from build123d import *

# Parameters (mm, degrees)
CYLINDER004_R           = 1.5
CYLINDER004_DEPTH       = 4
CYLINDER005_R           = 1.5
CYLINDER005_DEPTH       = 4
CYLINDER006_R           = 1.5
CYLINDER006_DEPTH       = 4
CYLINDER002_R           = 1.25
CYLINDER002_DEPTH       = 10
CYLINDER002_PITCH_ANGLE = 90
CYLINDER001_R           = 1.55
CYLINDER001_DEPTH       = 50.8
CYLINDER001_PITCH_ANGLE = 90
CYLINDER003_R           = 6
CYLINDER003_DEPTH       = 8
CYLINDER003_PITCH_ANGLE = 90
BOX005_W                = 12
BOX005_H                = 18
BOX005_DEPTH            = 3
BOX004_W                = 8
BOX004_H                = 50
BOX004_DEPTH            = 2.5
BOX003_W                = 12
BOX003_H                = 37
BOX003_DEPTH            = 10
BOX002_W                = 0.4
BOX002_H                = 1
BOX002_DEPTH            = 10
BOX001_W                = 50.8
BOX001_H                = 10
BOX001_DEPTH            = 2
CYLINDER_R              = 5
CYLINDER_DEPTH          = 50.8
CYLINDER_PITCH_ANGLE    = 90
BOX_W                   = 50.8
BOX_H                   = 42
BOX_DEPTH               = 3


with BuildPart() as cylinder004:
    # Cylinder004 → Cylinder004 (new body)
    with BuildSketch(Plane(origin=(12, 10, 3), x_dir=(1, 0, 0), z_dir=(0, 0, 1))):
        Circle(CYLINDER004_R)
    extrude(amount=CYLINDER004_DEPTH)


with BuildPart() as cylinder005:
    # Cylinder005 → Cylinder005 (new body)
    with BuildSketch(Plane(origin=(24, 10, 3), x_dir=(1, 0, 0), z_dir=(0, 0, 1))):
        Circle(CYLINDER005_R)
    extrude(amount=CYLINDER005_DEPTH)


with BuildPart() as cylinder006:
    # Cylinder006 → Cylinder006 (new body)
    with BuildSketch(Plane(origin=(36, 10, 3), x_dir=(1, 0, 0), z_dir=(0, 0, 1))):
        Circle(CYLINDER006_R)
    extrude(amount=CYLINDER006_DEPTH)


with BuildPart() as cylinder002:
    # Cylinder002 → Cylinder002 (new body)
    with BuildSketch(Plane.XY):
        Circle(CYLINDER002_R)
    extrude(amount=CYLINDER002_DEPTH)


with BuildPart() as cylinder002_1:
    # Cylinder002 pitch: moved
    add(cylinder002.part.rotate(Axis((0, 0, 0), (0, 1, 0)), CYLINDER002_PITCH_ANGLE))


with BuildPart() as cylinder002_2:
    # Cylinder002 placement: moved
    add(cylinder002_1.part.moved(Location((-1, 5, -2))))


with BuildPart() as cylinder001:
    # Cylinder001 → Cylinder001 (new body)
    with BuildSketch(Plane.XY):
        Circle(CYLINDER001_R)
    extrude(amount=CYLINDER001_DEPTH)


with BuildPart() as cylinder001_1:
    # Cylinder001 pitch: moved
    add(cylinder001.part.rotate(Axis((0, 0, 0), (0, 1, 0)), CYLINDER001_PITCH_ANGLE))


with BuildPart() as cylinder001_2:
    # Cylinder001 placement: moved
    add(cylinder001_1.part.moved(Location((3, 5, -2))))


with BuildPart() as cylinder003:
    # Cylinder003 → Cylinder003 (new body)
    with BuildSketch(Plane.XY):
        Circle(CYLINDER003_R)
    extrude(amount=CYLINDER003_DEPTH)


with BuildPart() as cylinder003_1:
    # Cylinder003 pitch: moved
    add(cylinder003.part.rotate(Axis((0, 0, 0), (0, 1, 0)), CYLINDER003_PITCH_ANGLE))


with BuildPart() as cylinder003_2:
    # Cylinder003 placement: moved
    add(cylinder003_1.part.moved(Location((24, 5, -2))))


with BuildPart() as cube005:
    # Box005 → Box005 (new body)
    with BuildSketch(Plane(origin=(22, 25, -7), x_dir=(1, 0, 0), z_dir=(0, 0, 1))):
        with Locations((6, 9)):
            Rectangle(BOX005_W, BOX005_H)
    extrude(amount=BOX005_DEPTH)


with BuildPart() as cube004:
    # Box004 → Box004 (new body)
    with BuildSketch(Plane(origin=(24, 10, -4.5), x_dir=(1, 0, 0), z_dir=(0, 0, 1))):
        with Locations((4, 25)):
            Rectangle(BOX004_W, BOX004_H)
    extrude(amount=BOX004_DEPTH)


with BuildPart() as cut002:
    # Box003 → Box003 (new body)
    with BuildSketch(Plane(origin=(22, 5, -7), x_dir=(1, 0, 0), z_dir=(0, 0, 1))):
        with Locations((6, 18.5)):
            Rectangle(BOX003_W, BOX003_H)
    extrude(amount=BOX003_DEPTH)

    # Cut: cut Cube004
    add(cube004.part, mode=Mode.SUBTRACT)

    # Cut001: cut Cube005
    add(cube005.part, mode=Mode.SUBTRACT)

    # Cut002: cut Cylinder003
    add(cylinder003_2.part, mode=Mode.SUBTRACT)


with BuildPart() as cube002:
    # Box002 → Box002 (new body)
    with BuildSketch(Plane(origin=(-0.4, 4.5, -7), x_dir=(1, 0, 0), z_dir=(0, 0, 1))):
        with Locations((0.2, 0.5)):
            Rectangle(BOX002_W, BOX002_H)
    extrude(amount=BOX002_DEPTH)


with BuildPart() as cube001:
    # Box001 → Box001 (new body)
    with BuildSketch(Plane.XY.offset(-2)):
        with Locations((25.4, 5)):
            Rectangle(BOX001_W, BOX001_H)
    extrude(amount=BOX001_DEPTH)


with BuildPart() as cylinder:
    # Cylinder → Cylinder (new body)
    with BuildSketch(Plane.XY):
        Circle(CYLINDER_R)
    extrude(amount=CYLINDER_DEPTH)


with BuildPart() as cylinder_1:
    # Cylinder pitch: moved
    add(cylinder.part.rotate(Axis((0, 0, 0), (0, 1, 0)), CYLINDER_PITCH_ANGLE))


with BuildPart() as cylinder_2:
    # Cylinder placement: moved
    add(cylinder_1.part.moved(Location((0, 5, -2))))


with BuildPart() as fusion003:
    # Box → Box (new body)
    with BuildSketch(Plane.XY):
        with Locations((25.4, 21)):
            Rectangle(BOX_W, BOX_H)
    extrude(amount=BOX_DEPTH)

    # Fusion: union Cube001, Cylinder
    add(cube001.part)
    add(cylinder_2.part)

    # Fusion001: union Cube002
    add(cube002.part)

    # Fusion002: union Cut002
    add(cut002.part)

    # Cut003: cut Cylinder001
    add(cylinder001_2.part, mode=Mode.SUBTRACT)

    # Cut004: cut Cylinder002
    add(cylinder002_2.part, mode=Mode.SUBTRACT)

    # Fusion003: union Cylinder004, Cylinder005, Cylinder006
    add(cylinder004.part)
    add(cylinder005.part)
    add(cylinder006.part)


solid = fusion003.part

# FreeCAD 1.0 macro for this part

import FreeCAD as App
import Part
import Sketcher
from FreeCAD import Vector
Q = App.Units.Quantity

doc = App.newDocument("Part")
body = doc.addObject("PartDesign::Body", "Body")

sketch1 = body.newObject("Sketcher::SketchObject", "Sketch")
sketch1.AttachmentSupport = (doc.getObject("XY_Plane"), [""])
sketch1.MapMode = "FlatFace"
sketch1.AttachmentOffset = App.Placement(Vector(0, 0, 3), App.Rotation())
sketch1.addGeometry(Part.Circle(Vector(12, 10, 0), Vector(0, 0, 1), 1.5), False)
sketch1.addConstraint(Sketcher.Constraint("Diameter", 0, Q("3 mm")))
sketch1.addConstraint(Sketcher.Constraint("DistanceX", -1, 1, 0, 3, Q("12 mm")))
sketch1.addConstraint(Sketcher.Constraint("DistanceY", -1, 1, 0, 3, Q("10 mm")))
pad1 = body.newObject("PartDesign::Pad", "Pad")
pad1.Profile = sketch1
pad1.Length = 4
body2 = doc.addObject("PartDesign::Body", "Body001")

sketch2 = body2.newObject("Sketcher::SketchObject", "Sketch001")
sketch2.AttachmentSupport = (doc.getObject("XY_Plane001"), [""])
sketch2.MapMode = "FlatFace"
sketch2.AttachmentOffset = App.Placement(Vector(0, 0, 3), App.Rotation())
sketch2.addGeometry(Part.Circle(Vector(24, 10, 0), Vector(0, 0, 1), 1.5), False)
sketch2.addConstraint(Sketcher.Constraint("Diameter", 0, Q("3 mm")))
sketch2.addConstraint(Sketcher.Constraint("DistanceX", -1, 1, 0, 3, Q("24 mm")))
sketch2.addConstraint(Sketcher.Constraint("DistanceY", -1, 1, 0, 3, Q("10 mm")))
pad2 = body2.newObject("PartDesign::Pad", "Pad001")
pad2.Profile = sketch2
pad2.Length = 4
body3 = doc.addObject("PartDesign::Body", "Body002")

sketch3 = body3.newObject("Sketcher::SketchObject", "Sketch002")
sketch3.AttachmentSupport = (doc.getObject("XY_Plane002"), [""])
sketch3.MapMode = "FlatFace"
sketch3.AttachmentOffset = App.Placement(Vector(0, 0, 3), App.Rotation())
sketch3.addGeometry(Part.Circle(Vector(36, 10, 0), Vector(0, 0, 1), 1.5), False)
sketch3.addConstraint(Sketcher.Constraint("Diameter", 0, Q("3 mm")))
sketch3.addConstraint(Sketcher.Constraint("DistanceX", -1, 1, 0, 3, Q("36 mm")))
sketch3.addConstraint(Sketcher.Constraint("DistanceY", -1, 1, 0, 3, Q("10 mm")))
pad3 = body3.newObject("PartDesign::Pad", "Pad002")
pad3.Profile = sketch3
pad3.Length = 4
body4 = doc.addObject("PartDesign::Body", "Body003")

sketch4 = body4.newObject("Sketcher::SketchObject", "Sketch003")
sketch4.AttachmentSupport = (doc.getObject("XY_Plane003"), [""])
sketch4.MapMode = "FlatFace"
sketch4.addGeometry(Part.Circle(Vector(0, 0, 0), Vector(0, 0, 1), 1.25), False)
sketch4.addConstraint(Sketcher.Constraint("Coincident", 0, 3, -1, 1))
sketch4.addConstraint(Sketcher.Constraint("Diameter", 0, Q("2.5 mm")))
pad4 = body4.newObject("PartDesign::Pad", "Pad003")
pad4.Profile = sketch4
pad4.Length = 10
body5 = doc.addObject("PartDesign::Body", "Body004")
doc.recompute()

body4.Placement = App.Placement(Vector(0, 0, 0), App.Rotation(Vector(0, 1, 0), 90))
boolean = body5.newObject("PartDesign::Boolean", "Boolean")
boolean.Type = "Fuse"
boolean.addObjects([body4])
body6 = doc.addObject("PartDesign::Body", "Body005")
doc.recompute()

body5.Placement = App.Placement(Vector(-1, 5, -2), App.Rotation(Vector(0, 0, 1), 0))
boolean2 = body6.newObject("PartDesign::Boolean", "Boolean001")
boolean2.Type = "Fuse"
boolean2.addObjects([body5])
body7 = doc.addObject("PartDesign::Body", "Body006")

sketch5 = body7.newObject("Sketcher::SketchObject", "Sketch004")
sketch5.AttachmentSupport = (doc.getObject("XY_Plane006"), [""])
sketch5.MapMode = "FlatFace"
sketch5.addGeometry(Part.Circle(Vector(0, 0, 0), Vector(0, 0, 1), 1.55), False)
sketch5.addConstraint(Sketcher.Constraint("Coincident", 0, 3, -1, 1))
sketch5.addConstraint(Sketcher.Constraint("Diameter", 0, Q("3.1 mm")))
pad5 = body7.newObject("PartDesign::Pad", "Pad004")
pad5.Profile = sketch5
pad5.Length = 50.8
body8 = doc.addObject("PartDesign::Body", "Body007")
doc.recompute()

body7.Placement = App.Placement(Vector(0, 0, 0), App.Rotation(Vector(0, 1, 0), 90))
boolean3 = body8.newObject("PartDesign::Boolean", "Boolean002")
boolean3.Type = "Fuse"
boolean3.addObjects([body7])
body9 = doc.addObject("PartDesign::Body", "Body008")
doc.recompute()

body8.Placement = App.Placement(Vector(3, 5, -2), App.Rotation(Vector(0, 0, 1), 0))
boolean4 = body9.newObject("PartDesign::Boolean", "Boolean003")
boolean4.Type = "Fuse"
boolean4.addObjects([body8])
body10 = doc.addObject("PartDesign::Body", "Body009")

sketch6 = body10.newObject("Sketcher::SketchObject", "Sketch005")
sketch6.AttachmentSupport = (doc.getObject("XY_Plane009"), [""])
sketch6.MapMode = "FlatFace"
sketch6.addGeometry(Part.Circle(Vector(0, 0, 0), Vector(0, 0, 1), 6), False)
sketch6.addConstraint(Sketcher.Constraint("Coincident", 0, 3, -1, 1))
sketch6.addConstraint(Sketcher.Constraint("Diameter", 0, Q("12 mm")))
pad6 = body10.newObject("PartDesign::Pad", "Pad005")
pad6.Profile = sketch6
pad6.Length = 8
body11 = doc.addObject("PartDesign::Body", "Body010")
doc.recompute()

body10.Placement = App.Placement(Vector(0, 0, 0), App.Rotation(Vector(0, 1, 0), 90))
boolean5 = body11.newObject("PartDesign::Boolean", "Boolean004")
boolean5.Type = "Fuse"
boolean5.addObjects([body10])
body12 = doc.addObject("PartDesign::Body", "Body011")
doc.recompute()

body11.Placement = App.Placement(Vector(24, 5, -2), App.Rotation(Vector(0, 0, 1), 0))
boolean6 = body12.newObject("PartDesign::Boolean", "Boolean005")
boolean6.Type = "Fuse"
boolean6.addObjects([body11])
body13 = doc.addObject("PartDesign::Body", "Body012")

sketch7 = body13.newObject("Sketcher::SketchObject", "Sketch006")
sketch7.AttachmentSupport = (doc.getObject("XY_Plane012"), [""])
sketch7.MapMode = "FlatFace"
sketch7.AttachmentOffset = App.Placement(Vector(0, 0, -7), App.Rotation())
sketch7.addGeometry(Part.LineSegment(Vector(22, 43, 0), Vector(22, 25, 0)), False)
sketch7.addGeometry(Part.LineSegment(Vector(22, 25, 0), Vector(34, 25, 0)), False)
sketch7.addGeometry(Part.LineSegment(Vector(34, 25, 0), Vector(34, 43, 0)), False)
sketch7.addGeometry(Part.LineSegment(Vector(34, 43, 0), Vector(22, 43, 0)), False)
sketch7.addConstraint(Sketcher.Constraint("Coincident", 0, 2, 1, 1))
sketch7.addConstraint(Sketcher.Constraint("Coincident", 1, 2, 2, 1))
sketch7.addConstraint(Sketcher.Constraint("Coincident", 2, 2, 3, 1))
sketch7.addConstraint(Sketcher.Constraint("Coincident", 3, 2, 0, 1))
sketch7.addConstraint(Sketcher.Constraint("Vertical", 0))
sketch7.addConstraint(Sketcher.Constraint("Horizontal", 1))
sketch7.addConstraint(Sketcher.Constraint("Vertical", 2))
sketch7.addConstraint(Sketcher.Constraint("Horizontal", 3))
sketch7.addConstraint(Sketcher.Constraint("DistanceX", 1, 1, 1, 2, Q("12 mm")))
sketch7.addConstraint(Sketcher.Constraint("DistanceY", 0, 2, 0, 1, Q("18 mm")))
sketch7.addConstraint(Sketcher.Constraint("DistanceX", -1, 1, 0, 2, Q("22 mm")))
sketch7.addConstraint(Sketcher.Constraint("DistanceY", -1, 1, 0, 2, Q("25 mm")))
pad7 = body13.newObject("PartDesign::Pad", "Pad006")
pad7.Profile = sketch7
pad7.Length = 3
body14 = doc.addObject("PartDesign::Body", "Body013")

sketch8 = body14.newObject("Sketcher::SketchObject", "Sketch007")
sketch8.AttachmentSupport = (doc.getObject("XY_Plane013"), [""])
sketch8.MapMode = "FlatFace"
sketch8.AttachmentOffset = App.Placement(Vector(0, 0, -4.5), App.Rotation())
sketch8.addGeometry(Part.LineSegment(Vector(24, 60, 0), Vector(24, 10, 0)), False)
sketch8.addGeometry(Part.LineSegment(Vector(24, 10, 0), Vector(32, 10, 0)), False)
sketch8.addGeometry(Part.LineSegment(Vector(32, 10, 0), Vector(32, 60, 0)), False)
sketch8.addGeometry(Part.LineSegment(Vector(32, 60, 0), Vector(24, 60, 0)), False)
sketch8.addConstraint(Sketcher.Constraint("Coincident", 0, 2, 1, 1))
sketch8.addConstraint(Sketcher.Constraint("Coincident", 1, 2, 2, 1))
sketch8.addConstraint(Sketcher.Constraint("Coincident", 2, 2, 3, 1))
sketch8.addConstraint(Sketcher.Constraint("Coincident", 3, 2, 0, 1))
sketch8.addConstraint(Sketcher.Constraint("Vertical", 0))
sketch8.addConstraint(Sketcher.Constraint("Horizontal", 1))
sketch8.addConstraint(Sketcher.Constraint("Vertical", 2))
sketch8.addConstraint(Sketcher.Constraint("Horizontal", 3))
sketch8.addConstraint(Sketcher.Constraint("DistanceX", 1, 1, 1, 2, Q("8 mm")))
sketch8.addConstraint(Sketcher.Constraint("DistanceY", 0, 2, 0, 1, Q("50 mm")))
sketch8.addConstraint(Sketcher.Constraint("DistanceX", -1, 1, 0, 2, Q("24 mm")))
sketch8.addConstraint(Sketcher.Constraint("DistanceY", -1, 1, 0, 2, Q("10 mm")))
pad8 = body14.newObject("PartDesign::Pad", "Pad007")
pad8.Profile = sketch8
pad8.Length = 2.5
body15 = doc.addObject("PartDesign::Body", "Body014")

sketch9 = body15.newObject("Sketcher::SketchObject", "Sketch008")
sketch9.AttachmentSupport = (doc.getObject("XY_Plane014"), [""])
sketch9.MapMode = "FlatFace"
sketch9.AttachmentOffset = App.Placement(Vector(0, 0, -7), App.Rotation())
sketch9.addGeometry(Part.LineSegment(Vector(22, 42, 0), Vector(22, 5, 0)), False)
sketch9.addGeometry(Part.LineSegment(Vector(22, 5, 0), Vector(34, 5, 0)), False)
sketch9.addGeometry(Part.LineSegment(Vector(34, 5, 0), Vector(34, 42, 0)), False)
sketch9.addGeometry(Part.LineSegment(Vector(34, 42, 0), Vector(22, 42, 0)), False)
sketch9.addConstraint(Sketcher.Constraint("Coincident", 0, 2, 1, 1))
sketch9.addConstraint(Sketcher.Constraint("Coincident", 1, 2, 2, 1))
sketch9.addConstraint(Sketcher.Constraint("Coincident", 2, 2, 3, 1))
sketch9.addConstraint(Sketcher.Constraint("Coincident", 3, 2, 0, 1))
sketch9.addConstraint(Sketcher.Constraint("Vertical", 0))
sketch9.addConstraint(Sketcher.Constraint("Horizontal", 1))
sketch9.addConstraint(Sketcher.Constraint("Vertical", 2))
sketch9.addConstraint(Sketcher.Constraint("Horizontal", 3))
sketch9.addConstraint(Sketcher.Constraint("DistanceX", 1, 1, 1, 2, Q("12 mm")))
sketch9.addConstraint(Sketcher.Constraint("DistanceY", 0, 2, 0, 1, Q("37 mm")))
sketch9.addConstraint(Sketcher.Constraint("DistanceX", -1, 1, 0, 2, Q("22 mm")))
sketch9.addConstraint(Sketcher.Constraint("DistanceY", -1, 1, 0, 2, Q("5 mm")))
pad9 = body15.newObject("PartDesign::Pad", "Pad008")
pad9.Profile = sketch9
pad9.Length = 10
doc.recompute()

boolean7 = body15.newObject("PartDesign::Boolean", "Boolean006")
boolean7.Type = "Cut"
boolean7.addObjects([body14])
doc.recompute()

boolean8 = body15.newObject("PartDesign::Boolean", "Boolean007")
boolean8.Type = "Cut"
boolean8.addObjects([body13])
doc.recompute()

boolean9 = body15.newObject("PartDesign::Boolean", "Boolean008")
boolean9.Type = "Cut"
boolean9.addObjects([body12])
body16 = doc.addObject("PartDesign::Body", "Body015")

sketch10 = body16.newObject("Sketcher::SketchObject", "Sketch009")
sketch10.AttachmentSupport = (doc.getObject("XY_Plane015"), [""])
sketch10.MapMode = "FlatFace"
sketch10.AttachmentOffset = App.Placement(Vector(0, 0, -7), App.Rotation())
sketch10.addGeometry(Part.LineSegment(Vector(-0.4, 5.5, 0), Vector(-0.4, 4.5, 0)), False)
sketch10.addGeometry(Part.LineSegment(Vector(-0.4, 4.5, 0), Vector(0, 4.5, 0)), False)
sketch10.addGeometry(Part.LineSegment(Vector(0, 4.5, 0), Vector(0, 5.5, 0)), False)
sketch10.addGeometry(Part.LineSegment(Vector(0, 5.5, 0), Vector(-0.4, 5.5, 0)), False)
sketch10.addConstraint(Sketcher.Constraint("Coincident", 0, 2, 1, 1))
sketch10.addConstraint(Sketcher.Constraint("Coincident", 1, 2, 2, 1))
sketch10.addConstraint(Sketcher.Constraint("Coincident", 2, 2, 3, 1))
sketch10.addConstraint(Sketcher.Constraint("Coincident", 3, 2, 0, 1))
sketch10.addConstraint(Sketcher.Constraint("Vertical", 0))
sketch10.addConstraint(Sketcher.Constraint("Horizontal", 1))
sketch10.addConstraint(Sketcher.Constraint("Vertical", 2))
sketch10.addConstraint(Sketcher.Constraint("Horizontal", 3))
sketch10.addConstraint(Sketcher.Constraint("PointOnObject", 1, 2, -2))
sketch10.addConstraint(Sketcher.Constraint("DistanceY", 0, 2, 0, 1, Q("1 mm")))
sketch10.addConstraint(Sketcher.Constraint("DistanceX", 1, 1, 1, 2, Q("0.4 mm")))
sketch10.addConstraint(Sketcher.Constraint("DistanceY", -1, 1, 0, 2, Q("4.5 mm")))
pad10 = body16.newObject("PartDesign::Pad", "Pad009")
pad10.Profile = sketch10
pad10.Length = 10
body17 = doc.addObject("PartDesign::Body", "Body016")

sketch11 = body17.newObject("Sketcher::SketchObject", "Sketch010")
sketch11.AttachmentSupport = (doc.getObject("XY_Plane016"), [""])
sketch11.MapMode = "FlatFace"
sketch11.AttachmentOffset = App.Placement(Vector(0, 0, -2), App.Rotation())
sketch11.addGeometry(Part.LineSegment(Vector(0, 10, 0), Vector(0, 0, 0)), False)
sketch11.addGeometry(Part.LineSegment(Vector(0, 0, 0), Vector(50.8, 0, 0)), False)
sketch11.addGeometry(Part.LineSegment(Vector(50.8, 0, 0), Vector(50.8, 10, 0)), False)
sketch11.addGeometry(Part.LineSegment(Vector(50.8, 10, 0), Vector(0, 10, 0)), False)
sketch11.addConstraint(Sketcher.Constraint("Coincident", 0, 2, 1, 1))
sketch11.addConstraint(Sketcher.Constraint("Coincident", 1, 2, 2, 1))
sketch11.addConstraint(Sketcher.Constraint("Coincident", 2, 2, 3, 1))
sketch11.addConstraint(Sketcher.Constraint("Coincident", 3, 2, 0, 1))
sketch11.addConstraint(Sketcher.Constraint("Vertical", 0))
sketch11.addConstraint(Sketcher.Constraint("Horizontal", 1))
sketch11.addConstraint(Sketcher.Constraint("Vertical", 2))
sketch11.addConstraint(Sketcher.Constraint("Horizontal", 3))
sketch11.addConstraint(Sketcher.Constraint("Coincident", 0, 2, -1, 1))
sketch11.addConstraint(Sketcher.Constraint("DistanceY", 0, 2, 0, 1, Q("10 mm")))
sketch11.addConstraint(Sketcher.Constraint("DistanceX", 1, 1, 1, 2, Q("50.8 mm")))
pad11 = body17.newObject("PartDesign::Pad", "Pad010")
pad11.Profile = sketch11
pad11.Length = 2
body18 = doc.addObject("PartDesign::Body", "Body017")

sketch12 = body18.newObject("Sketcher::SketchObject", "Sketch011")
sketch12.AttachmentSupport = (doc.getObject("XY_Plane017"), [""])
sketch12.MapMode = "FlatFace"
sketch12.addGeometry(Part.Circle(Vector(0, 0, 0), Vector(0, 0, 1), 5), False)
sketch12.addConstraint(Sketcher.Constraint("Coincident", 0, 3, -1, 1))
sketch12.addConstraint(Sketcher.Constraint("Diameter", 0, Q("10 mm")))
pad12 = body18.newObject("PartDesign::Pad", "Pad011")
pad12.Profile = sketch12
pad12.Length = 50.8
body19 = doc.addObject("PartDesign::Body", "Body018")
doc.recompute()

body18.Placement = App.Placement(Vector(0, 0, 0), App.Rotation(Vector(0, 1, 0), 90))
boolean10 = body19.newObject("PartDesign::Boolean", "Boolean009")
boolean10.Type = "Fuse"
boolean10.addObjects([body18])
body20 = doc.addObject("PartDesign::Body", "Body019")
doc.recompute()

body19.Placement = App.Placement(Vector(0, 5, -2), App.Rotation(Vector(0, 0, 1), 0))
boolean11 = body20.newObject("PartDesign::Boolean", "Boolean010")
boolean11.Type = "Fuse"
boolean11.addObjects([body19])
body21 = doc.addObject("PartDesign::Body", "Body020")

sketch13 = body21.newObject("Sketcher::SketchObject", "Sketch012")
sketch13.AttachmentSupport = (doc.getObject("XY_Plane020"), [""])
sketch13.MapMode = "FlatFace"
sketch13.addGeometry(Part.LineSegment(Vector(0, 42, 0), Vector(0, 0, 0)), False)
sketch13.addGeometry(Part.LineSegment(Vector(0, 0, 0), Vector(50.8, 0, 0)), False)
sketch13.addGeometry(Part.LineSegment(Vector(50.8, 0, 0), Vector(50.8, 42, 0)), False)
sketch13.addGeometry(Part.LineSegment(Vector(50.8, 42, 0), Vector(0, 42, 0)), False)
sketch13.addConstraint(Sketcher.Constraint("Coincident", 0, 2, 1, 1))
sketch13.addConstraint(Sketcher.Constraint("Coincident", 1, 2, 2, 1))
sketch13.addConstraint(Sketcher.Constraint("Coincident", 2, 2, 3, 1))
sketch13.addConstraint(Sketcher.Constraint("Coincident", 3, 2, 0, 1))
sketch13.addConstraint(Sketcher.Constraint("Vertical", 0))
sketch13.addConstraint(Sketcher.Constraint("Horizontal", 1))
sketch13.addConstraint(Sketcher.Constraint("Vertical", 2))
sketch13.addConstraint(Sketcher.Constraint("Horizontal", 3))
sketch13.addConstraint(Sketcher.Constraint("Coincident", 0, 2, -1, 1))
sketch13.addConstraint(Sketcher.Constraint("DistanceY", 0, 2, 0, 1, Q("42 mm")))
sketch13.addConstraint(Sketcher.Constraint("DistanceX", 1, 1, 1, 2, Q("50.8 mm")))
pad13 = body21.newObject("PartDesign::Pad", "Pad012")
pad13.Profile = sketch13
pad13.Length = 3
doc.recompute()

boolean12 = body21.newObject("PartDesign::Boolean", "Boolean011")
boolean12.Type = "Fuse"
boolean12.addObjects([body17])
doc.recompute()

boolean13 = body21.newObject("PartDesign::Boolean", "Boolean012")
boolean13.Type = "Fuse"
boolean13.addObjects([body20])
doc.recompute()

boolean14 = body21.newObject("PartDesign::Boolean", "Boolean013")
boolean14.Type = "Fuse"
boolean14.addObjects([body16])
doc.recompute()

boolean15 = body21.newObject("PartDesign::Boolean", "Boolean014")
boolean15.Type = "Fuse"
boolean15.addObjects([body15])
doc.recompute()

boolean16 = body21.newObject("PartDesign::Boolean", "Boolean015")
boolean16.Type = "Cut"
boolean16.addObjects([body9])
doc.recompute()

boolean17 = body21.newObject("PartDesign::Boolean", "Boolean016")
boolean17.Type = "Cut"
boolean17.addObjects([body6])
doc.recompute()

boolean18 = body21.newObject("PartDesign::Boolean", "Boolean017")
boolean18.Type = "Fuse"
boolean18.addObjects([body])
doc.recompute()

boolean19 = body21.newObject("PartDesign::Boolean", "Boolean018")
boolean19.Type = "Fuse"
boolean19.addObjects([body2])
doc.recompute()

boolean20 = body21.newObject("PartDesign::Boolean", "Boolean019")
boolean20.Type = "Fuse"
boolean20.addObjects([body3])

doc.recompute()
